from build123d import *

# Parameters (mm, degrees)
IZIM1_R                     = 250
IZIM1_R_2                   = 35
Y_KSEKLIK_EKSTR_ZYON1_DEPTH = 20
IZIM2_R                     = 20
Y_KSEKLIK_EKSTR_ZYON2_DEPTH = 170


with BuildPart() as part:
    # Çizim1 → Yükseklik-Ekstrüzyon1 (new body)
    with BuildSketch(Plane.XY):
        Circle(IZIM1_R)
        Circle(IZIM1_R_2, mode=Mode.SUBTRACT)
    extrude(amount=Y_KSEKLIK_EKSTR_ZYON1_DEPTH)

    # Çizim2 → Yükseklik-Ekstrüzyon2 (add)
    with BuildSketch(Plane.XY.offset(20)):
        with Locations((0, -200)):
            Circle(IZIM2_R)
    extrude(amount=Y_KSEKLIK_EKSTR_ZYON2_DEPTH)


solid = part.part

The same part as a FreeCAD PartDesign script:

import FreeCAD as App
import Part
import Sketcher

V = App.Vector

doc = App.newDocument("Part")
body = doc.addObject("PartDesign::Body", "Body")

# Sketch on XY plane
sketch1 = body.newObject("Sketcher::SketchObject", "Sketch")
sketch1.AttachmentSupport = (doc.getObject("XY_Plane"), [""])
sketch1.MapMode = "FlatFace"
sketch1.addGeometry([
    Part.Circle(V(0, 0, 0), V(0, 0, 1), 250),
    Part.Circle(V(0, 0, 0), V(0, 0, 1), 35),
], False)
sketch1.addConstraint([
    Sketcher.Constraint("Coincident", 0, 3, -1, 1),
    Sketcher.Constraint("Coincident", 1, 3, -1, 1),
    Sketcher.Constraint("Diameter", 0, 500.0),
    Sketcher.Constraint("Diameter", 1, 70.0),
])
pad1 = body.newObject("PartDesign::Pad", "Pad")
pad1.Profile = sketch1
pad1.Length = 20

# Sketch on XY plane
sketch2 = body.newObject("Sketcher::SketchObject", "Sketch001")
sketch2.AttachmentSupport = (doc.getObject("XY_Plane"), [""])
sketch2.MapMode = "FlatFace"
sketch2.AttachmentOffset = App.Placement(V(0, 0, 20), App.Rotation())
sketch2.addGeometry(Part.Circle(V(0, -200, 0), V(0, 0, 1), 20), False)
sketch2.addConstraint([
    Sketcher.Constraint("PointOnObject", 0, 3, -2),
    Sketcher.Constraint("Diameter", 0, 40.0),
    Sketcher.Constraint("DistanceY", 0, 3, -1, 1, 200.0),
])
pad2 = body.newObject("PartDesign::Pad", "Pad001")
pad2.Profile = sketch2
pad2.Length = 170

doc.recompute()
